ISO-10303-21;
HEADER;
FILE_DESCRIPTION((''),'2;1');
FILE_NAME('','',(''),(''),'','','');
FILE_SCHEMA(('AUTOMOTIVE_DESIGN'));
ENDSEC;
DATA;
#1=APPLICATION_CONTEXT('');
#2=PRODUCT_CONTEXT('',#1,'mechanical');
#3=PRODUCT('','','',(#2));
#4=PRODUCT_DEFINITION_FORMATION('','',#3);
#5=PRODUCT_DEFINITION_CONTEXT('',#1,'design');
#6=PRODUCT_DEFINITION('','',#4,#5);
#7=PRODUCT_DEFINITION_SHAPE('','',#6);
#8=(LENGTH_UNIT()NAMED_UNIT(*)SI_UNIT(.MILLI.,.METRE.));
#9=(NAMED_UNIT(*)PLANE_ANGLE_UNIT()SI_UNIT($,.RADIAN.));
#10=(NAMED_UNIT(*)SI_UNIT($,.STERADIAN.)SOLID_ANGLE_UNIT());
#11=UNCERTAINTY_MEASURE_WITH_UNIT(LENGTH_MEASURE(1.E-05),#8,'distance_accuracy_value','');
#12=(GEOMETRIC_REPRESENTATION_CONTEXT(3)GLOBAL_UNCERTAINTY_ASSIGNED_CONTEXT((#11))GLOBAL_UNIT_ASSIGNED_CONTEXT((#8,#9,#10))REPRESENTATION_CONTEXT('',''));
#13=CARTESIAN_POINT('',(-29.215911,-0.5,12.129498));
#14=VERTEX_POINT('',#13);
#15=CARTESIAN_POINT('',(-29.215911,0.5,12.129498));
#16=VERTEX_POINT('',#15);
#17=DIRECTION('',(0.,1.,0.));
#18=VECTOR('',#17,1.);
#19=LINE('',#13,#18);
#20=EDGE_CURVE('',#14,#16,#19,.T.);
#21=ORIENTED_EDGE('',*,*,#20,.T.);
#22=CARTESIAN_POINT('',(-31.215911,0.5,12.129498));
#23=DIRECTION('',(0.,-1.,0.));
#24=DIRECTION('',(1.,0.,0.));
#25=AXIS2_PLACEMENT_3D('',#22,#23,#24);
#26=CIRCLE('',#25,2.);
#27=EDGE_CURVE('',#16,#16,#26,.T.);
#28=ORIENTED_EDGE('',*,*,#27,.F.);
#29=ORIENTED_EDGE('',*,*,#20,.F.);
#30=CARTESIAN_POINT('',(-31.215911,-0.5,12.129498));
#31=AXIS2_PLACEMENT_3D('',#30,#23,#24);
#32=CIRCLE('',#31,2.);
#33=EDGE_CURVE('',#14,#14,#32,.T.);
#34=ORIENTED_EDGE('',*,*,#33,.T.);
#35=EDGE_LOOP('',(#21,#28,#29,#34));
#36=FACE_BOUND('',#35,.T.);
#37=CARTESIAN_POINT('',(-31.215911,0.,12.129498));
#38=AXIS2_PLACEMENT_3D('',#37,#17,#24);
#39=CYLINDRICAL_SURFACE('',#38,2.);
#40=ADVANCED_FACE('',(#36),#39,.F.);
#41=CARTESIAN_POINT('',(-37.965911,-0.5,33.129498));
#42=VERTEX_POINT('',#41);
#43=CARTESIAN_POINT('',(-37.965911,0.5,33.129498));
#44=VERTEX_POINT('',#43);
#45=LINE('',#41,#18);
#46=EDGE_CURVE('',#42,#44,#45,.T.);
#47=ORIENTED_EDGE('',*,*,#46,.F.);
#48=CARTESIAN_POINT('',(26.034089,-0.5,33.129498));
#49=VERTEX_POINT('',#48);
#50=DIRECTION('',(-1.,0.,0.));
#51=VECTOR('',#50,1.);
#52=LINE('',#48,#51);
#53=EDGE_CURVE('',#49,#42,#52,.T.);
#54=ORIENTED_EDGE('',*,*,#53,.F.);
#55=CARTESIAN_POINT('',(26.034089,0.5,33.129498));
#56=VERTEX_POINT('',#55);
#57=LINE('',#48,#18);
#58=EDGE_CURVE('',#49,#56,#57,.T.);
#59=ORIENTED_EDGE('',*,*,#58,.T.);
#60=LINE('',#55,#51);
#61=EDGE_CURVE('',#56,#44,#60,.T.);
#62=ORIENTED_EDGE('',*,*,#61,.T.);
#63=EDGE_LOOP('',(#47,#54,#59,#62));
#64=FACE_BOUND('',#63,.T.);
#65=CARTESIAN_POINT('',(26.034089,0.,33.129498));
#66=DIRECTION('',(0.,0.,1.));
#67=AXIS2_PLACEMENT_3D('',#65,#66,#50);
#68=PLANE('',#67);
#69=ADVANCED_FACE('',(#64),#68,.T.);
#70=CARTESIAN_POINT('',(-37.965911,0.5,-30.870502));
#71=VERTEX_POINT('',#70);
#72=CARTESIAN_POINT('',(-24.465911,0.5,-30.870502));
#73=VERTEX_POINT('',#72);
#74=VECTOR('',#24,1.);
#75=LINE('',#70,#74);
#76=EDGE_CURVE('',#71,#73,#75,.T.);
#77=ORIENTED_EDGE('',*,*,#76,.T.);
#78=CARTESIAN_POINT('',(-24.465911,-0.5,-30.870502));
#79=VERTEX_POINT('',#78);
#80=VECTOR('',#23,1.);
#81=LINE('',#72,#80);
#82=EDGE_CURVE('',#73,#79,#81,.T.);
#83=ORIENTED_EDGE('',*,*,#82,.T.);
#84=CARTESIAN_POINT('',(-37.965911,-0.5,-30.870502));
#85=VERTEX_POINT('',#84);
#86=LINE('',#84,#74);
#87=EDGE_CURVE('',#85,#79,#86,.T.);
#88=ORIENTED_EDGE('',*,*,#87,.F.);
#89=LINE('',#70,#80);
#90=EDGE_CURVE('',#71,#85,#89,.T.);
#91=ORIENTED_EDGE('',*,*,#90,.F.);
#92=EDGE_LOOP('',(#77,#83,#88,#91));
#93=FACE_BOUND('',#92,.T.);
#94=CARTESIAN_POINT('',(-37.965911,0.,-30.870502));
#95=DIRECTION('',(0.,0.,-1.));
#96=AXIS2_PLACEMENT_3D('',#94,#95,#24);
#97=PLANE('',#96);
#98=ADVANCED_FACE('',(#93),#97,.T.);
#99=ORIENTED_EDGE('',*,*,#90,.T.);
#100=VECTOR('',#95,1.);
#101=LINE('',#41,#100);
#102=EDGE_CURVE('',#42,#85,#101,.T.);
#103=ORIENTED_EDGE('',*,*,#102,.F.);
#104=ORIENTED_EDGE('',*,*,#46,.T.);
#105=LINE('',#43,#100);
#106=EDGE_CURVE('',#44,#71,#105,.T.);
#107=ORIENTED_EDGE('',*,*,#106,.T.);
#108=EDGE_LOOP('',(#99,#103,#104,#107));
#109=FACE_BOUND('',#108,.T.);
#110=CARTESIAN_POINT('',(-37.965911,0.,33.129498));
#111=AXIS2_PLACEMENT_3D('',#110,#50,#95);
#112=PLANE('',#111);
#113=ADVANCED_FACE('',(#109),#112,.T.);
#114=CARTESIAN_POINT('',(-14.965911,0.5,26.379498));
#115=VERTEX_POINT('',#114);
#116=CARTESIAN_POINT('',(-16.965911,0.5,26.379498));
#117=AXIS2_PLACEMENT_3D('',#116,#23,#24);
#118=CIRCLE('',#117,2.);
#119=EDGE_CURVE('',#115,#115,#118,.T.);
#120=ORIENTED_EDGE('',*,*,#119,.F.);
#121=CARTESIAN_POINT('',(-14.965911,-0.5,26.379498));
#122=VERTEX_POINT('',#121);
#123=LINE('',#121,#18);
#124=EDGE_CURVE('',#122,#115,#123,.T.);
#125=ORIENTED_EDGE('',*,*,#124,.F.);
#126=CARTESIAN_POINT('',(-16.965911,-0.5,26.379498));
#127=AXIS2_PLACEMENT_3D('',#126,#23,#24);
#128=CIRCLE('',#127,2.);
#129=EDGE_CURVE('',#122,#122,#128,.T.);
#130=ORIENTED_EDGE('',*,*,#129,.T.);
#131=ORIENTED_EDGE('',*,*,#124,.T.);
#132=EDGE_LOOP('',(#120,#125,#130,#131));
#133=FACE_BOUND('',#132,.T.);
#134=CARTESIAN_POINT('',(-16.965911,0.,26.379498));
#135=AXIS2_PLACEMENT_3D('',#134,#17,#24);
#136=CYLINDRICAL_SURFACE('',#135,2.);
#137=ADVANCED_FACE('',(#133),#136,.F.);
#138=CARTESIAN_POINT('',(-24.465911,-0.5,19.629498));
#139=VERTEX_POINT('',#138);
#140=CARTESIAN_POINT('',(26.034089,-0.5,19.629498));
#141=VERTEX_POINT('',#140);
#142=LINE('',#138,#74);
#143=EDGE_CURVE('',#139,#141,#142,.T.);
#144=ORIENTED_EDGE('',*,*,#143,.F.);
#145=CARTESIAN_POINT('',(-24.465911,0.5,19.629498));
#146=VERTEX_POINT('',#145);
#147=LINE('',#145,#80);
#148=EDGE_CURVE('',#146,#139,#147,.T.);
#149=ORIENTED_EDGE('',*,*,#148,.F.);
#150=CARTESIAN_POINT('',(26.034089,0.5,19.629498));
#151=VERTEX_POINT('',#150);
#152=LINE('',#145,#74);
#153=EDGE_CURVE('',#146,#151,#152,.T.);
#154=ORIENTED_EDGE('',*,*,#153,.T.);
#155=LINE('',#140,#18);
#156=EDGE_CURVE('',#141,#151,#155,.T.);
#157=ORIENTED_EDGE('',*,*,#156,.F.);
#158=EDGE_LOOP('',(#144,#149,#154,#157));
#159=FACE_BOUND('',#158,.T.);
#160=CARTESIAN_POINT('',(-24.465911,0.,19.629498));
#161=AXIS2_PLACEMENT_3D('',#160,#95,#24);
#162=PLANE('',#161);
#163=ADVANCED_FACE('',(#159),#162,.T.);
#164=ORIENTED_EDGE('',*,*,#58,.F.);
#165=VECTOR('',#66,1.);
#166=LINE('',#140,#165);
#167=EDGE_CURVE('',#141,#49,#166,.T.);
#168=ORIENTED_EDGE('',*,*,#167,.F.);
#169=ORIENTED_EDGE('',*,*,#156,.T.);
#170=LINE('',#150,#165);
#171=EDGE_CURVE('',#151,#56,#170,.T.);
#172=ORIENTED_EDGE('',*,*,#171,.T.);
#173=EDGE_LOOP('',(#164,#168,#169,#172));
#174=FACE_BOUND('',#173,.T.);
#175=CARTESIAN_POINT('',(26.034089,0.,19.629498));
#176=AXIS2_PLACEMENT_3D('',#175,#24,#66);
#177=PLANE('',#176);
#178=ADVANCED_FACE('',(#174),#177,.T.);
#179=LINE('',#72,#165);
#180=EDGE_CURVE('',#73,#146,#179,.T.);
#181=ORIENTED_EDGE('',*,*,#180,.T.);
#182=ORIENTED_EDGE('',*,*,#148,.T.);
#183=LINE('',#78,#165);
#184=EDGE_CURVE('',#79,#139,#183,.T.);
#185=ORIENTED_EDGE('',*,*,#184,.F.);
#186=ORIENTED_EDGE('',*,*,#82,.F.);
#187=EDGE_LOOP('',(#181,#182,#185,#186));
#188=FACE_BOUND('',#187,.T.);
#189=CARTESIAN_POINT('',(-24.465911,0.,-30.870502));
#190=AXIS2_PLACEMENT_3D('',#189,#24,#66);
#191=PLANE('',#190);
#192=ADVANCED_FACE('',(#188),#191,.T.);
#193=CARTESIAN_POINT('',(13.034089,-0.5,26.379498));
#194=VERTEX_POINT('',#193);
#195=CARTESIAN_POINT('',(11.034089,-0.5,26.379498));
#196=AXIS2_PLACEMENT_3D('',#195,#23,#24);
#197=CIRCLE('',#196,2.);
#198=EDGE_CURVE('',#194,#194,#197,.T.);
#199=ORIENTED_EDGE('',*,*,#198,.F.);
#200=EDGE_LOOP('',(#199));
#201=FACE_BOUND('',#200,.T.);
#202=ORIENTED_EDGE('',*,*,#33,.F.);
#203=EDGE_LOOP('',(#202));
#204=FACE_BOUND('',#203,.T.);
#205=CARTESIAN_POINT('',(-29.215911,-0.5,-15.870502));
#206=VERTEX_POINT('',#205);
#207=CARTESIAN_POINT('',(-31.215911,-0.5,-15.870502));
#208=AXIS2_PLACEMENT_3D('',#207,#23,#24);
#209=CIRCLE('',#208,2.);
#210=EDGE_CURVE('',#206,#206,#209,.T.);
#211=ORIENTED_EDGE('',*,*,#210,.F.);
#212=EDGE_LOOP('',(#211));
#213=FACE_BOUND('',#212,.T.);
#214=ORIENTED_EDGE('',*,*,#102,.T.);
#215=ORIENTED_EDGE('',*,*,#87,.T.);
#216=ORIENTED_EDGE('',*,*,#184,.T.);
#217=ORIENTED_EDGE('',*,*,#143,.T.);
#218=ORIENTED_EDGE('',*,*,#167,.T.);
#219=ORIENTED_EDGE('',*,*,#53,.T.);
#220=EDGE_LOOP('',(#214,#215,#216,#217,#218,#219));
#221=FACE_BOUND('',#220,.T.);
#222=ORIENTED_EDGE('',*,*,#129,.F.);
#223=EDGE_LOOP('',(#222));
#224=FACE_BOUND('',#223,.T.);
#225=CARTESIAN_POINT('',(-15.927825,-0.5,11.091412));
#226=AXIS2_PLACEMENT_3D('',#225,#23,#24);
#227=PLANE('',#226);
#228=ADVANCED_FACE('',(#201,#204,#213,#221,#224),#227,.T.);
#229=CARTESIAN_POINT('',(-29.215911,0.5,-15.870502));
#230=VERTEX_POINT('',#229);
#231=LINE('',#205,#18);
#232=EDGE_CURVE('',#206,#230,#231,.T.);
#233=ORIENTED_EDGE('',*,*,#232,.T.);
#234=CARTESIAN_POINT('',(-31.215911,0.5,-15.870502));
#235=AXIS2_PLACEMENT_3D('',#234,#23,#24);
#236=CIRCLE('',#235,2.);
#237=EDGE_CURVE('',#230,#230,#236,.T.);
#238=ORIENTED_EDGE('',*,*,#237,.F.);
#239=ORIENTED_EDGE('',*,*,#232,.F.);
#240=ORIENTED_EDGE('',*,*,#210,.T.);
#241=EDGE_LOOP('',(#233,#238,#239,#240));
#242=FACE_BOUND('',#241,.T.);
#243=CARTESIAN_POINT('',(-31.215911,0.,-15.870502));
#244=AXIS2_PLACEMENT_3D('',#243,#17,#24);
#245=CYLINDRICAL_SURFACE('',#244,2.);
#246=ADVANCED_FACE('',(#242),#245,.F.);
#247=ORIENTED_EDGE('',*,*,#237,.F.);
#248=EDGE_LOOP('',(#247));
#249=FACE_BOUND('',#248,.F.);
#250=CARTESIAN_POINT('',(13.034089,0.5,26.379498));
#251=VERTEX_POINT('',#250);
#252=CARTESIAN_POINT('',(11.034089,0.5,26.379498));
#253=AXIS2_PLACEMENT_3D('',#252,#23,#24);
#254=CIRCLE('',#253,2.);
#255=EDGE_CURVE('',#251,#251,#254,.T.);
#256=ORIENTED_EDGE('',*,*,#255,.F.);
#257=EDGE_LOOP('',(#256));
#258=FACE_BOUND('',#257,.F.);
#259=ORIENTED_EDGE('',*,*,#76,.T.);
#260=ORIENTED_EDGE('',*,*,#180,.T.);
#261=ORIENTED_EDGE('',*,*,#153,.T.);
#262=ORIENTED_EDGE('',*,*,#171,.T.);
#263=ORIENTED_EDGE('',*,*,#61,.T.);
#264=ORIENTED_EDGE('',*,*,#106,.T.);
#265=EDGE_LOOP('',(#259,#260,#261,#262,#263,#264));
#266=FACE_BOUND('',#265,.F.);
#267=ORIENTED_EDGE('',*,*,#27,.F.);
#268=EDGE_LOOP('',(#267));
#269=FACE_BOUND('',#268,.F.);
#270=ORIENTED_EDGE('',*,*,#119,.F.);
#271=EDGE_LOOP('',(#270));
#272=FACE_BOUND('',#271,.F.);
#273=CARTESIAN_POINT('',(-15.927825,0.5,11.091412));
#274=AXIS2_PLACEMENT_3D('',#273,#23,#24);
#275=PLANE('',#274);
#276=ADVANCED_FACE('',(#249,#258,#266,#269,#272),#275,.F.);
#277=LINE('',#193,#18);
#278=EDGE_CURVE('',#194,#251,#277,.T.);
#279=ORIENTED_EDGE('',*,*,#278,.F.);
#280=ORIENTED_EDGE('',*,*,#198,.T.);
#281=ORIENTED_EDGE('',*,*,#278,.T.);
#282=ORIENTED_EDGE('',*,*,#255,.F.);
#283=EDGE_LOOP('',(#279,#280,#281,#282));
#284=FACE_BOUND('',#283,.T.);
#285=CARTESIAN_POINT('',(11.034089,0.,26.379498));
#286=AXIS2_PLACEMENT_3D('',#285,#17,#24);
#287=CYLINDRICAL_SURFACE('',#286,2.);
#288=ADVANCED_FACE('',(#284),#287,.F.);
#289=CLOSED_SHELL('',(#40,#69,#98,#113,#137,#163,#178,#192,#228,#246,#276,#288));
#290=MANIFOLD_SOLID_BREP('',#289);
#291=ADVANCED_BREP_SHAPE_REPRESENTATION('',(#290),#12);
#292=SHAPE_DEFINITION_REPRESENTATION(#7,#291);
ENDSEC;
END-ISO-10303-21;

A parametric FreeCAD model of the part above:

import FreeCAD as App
import Part
import Sketcher
from FreeCAD import Vector


def add_polygon(sketch, points):
    """Adds a closed chain of lines whose ends are joined by coincident constraints."""
    first, n = sketch.GeometryCount, len(points)
    for a, b in zip(points, points[1:] + points[:1]):
        sketch.addGeometry(Part.LineSegment(App.Vector(*a, 0), App.Vector(*b, 0)), False)
    for i in range(n):
        sketch.addConstraint(Sketcher.Constraint("Coincident", first + i, 2, first + (i + 1) % n, 1))

doc = App.newDocument("Part")
params = doc.addObject("Spreadsheet::Sheet", "Params")
for row, (alias, value) in enumerate([
    ("sketch1_diameter", "4 mm"),
    ("sketch1_width", "64 mm"),
    ("sketch1_width2", "13.5 mm"),
    ("pad1_length", "1 mm"),
], start=1):
    params.set(f"A{row}", alias)
    params.set(f"B{row}", "=" + value)
    params.setAlias(f"B{row}", alias)

body = doc.addObject("PartDesign::Body", "Body")

sketch1 = doc.addObject("Sketcher::SketchObject", "Sketch")
body.addObject(sketch1)
sketch1.AttachmentSupport = (doc.XZ_Plane, [""])
sketch1.MapMode = "FlatFace"
add_polygon(sketch1, [(-38, 33.1), (-38, -30.9), (-24.5, -30.9), (-24.5, 19.6), (26, 19.6), (26, 33.1)])
sketch1.addGeometry(Part.Circle(Vector(-31.2, -15.9, 0), Vector(0, 0, 1), 2), False)
sketch1.addGeometry(Part.Circle(Vector(-31.2, 12.1, 0), Vector(0, 0, 1), 2), False)
sketch1.addGeometry(Part.Circle(Vector(-17, 26.4, 0), Vector(0, 0, 1), 2), False)
sketch1.addGeometry(Part.Circle(Vector(11, 26.4, 0), Vector(0, 0, 1), 2), False)
sketch1.addConstraint(Sketcher.Constraint("Vertical", 0))
sketch1.addConstraint(Sketcher.Constraint("Horizontal", 1))
sketch1.addConstraint(Sketcher.Constraint("Vertical", 2))
sketch1.addConstraint(Sketcher.Constraint("Horizontal", 3))
sketch1.addConstraint(Sketcher.Constraint("Vertical", 4))
sketch1.addConstraint(Sketcher.Constraint("Horizontal", 5))
sketch1.addConstraint(Sketcher.Constraint("Equal", 6, 7))
sketch1.addConstraint(Sketcher.Constraint("Equal", 7, 8))
sketch1.addConstraint(Sketcher.Constraint("Equal", 8, 9))
sketch1.addConstraint(Sketcher.Constraint("Horizontal", 8, 3, 9, 3))
sketch1.addConstraint(Sketcher.Constraint("Vertical", 6, 3, 7, 3))
sketch1.addConstraint(Sketcher.Constraint("Equal", 5, 0))
sketch1.addConstraint(Sketcher.Constraint("Equal", 3, 2))
sketch1.addConstraint(Sketcher.Constraint("Diameter", 6, 4.0))
sketch1.addConstraint(Sketcher.Constraint("DistanceX", 5, 2, 5, 1, 64.0))
sketch1.addConstraint(Sketcher.Constraint("DistanceX", 1, 1, 1, 2, 13.5))
sketch1.addConstraint(Sketcher.Constraint("DistanceY", 6, 3, 7, 3, 28.0))
sketch1.addConstraint(Sketcher.Constraint("DistanceX", 8, 3, 9, 3, 28.0))
sketch1.addConstraint(Sketcher.Constraint("DistanceY", 0, 2, 6, 3, 15.0))
sketch1.addConstraint(Sketcher.Constraint("DistanceX", 0, 2, 8, 3, 21.0))
sketch1.addConstraint(Sketcher.Constraint("DistanceX", 7, 3, 8, 3, 14.25))
sketch1.addConstraint(Sketcher.Constraint("DistanceY", 7, 3, 8, 3, 14.25))
sketch1.addConstraint(Sketcher.Constraint("DistanceY", -1, 1, 8, 3, 26.379498))
sketch1.addConstraint(Sketcher.Constraint("DistanceX", 6, 3, -1, 1, 31.215911))
sketch1.setExpression("Constraints[19]", "Params.sketch1_diameter")
sketch1.setExpression("Constraints[20]", "Params.sketch1_width")
sketch1.setExpression("Constraints[21]", "Params.sketch1_width2")
pad1 = doc.addObject("PartDesign::Pad", "Pad")
body.addObject(pad1)
pad1.Profile = sketch1
pad1.setExpression("Length", "Params.pad1_length")
pad1.Midplane = True

doc.recompute()
